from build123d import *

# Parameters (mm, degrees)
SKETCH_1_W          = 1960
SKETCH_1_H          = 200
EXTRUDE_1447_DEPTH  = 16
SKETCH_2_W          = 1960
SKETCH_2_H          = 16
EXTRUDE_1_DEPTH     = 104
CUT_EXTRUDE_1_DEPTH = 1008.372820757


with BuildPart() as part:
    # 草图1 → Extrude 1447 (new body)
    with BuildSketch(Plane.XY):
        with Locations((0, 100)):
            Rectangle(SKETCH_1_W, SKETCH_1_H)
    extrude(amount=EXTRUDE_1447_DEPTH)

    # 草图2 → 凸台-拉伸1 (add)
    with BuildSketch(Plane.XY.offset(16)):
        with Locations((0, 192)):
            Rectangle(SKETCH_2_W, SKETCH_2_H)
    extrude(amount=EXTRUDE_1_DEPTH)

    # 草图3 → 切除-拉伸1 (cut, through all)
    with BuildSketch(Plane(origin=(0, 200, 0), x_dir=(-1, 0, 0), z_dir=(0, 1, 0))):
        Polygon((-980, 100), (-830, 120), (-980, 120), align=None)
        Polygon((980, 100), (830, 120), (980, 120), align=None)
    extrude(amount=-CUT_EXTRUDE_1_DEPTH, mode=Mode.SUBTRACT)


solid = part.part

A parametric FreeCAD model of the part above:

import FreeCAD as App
import Part
import Sketcher
from FreeCAD import Vector

doc = App.newDocument("Part")
body = doc.addObject("PartDesign::Body", "Body")

# Sketch on XY plane
sketch1 = body.newObject("Sketcher::SketchObject", "Sketch")
sketch1.AttachmentSupport = (doc.getObject("XY_Plane"), [""])
sketch1.MapMode = "FlatFace"
sketch1.addGeometry(Part.LineSegment(Vector(-980, 200, 0), Vector(-980, 0, 0)), False)
sketch1.addGeometry(Part.LineSegment(Vector(-980, 0, 0), Vector(980, 0, 0)), False)
sketch1.addGeometry(Part.LineSegment(Vector(980, 0, 0), Vector(980, 200, 0)), False)
sketch1.addGeometry(Part.LineSegment(Vector(980, 200, 0), Vector(-980, 200, 0)), False)
sketch1.addConstraint(Sketcher.Constraint("Coincident", 0, 2, 1, 1))
sketch1.addConstraint(Sketcher.Constraint("Coincident", 1, 2, 2, 1))
sketch1.addConstraint(Sketcher.Constraint("Coincident", 2, 2, 3, 1))
sketch1.addConstraint(Sketcher.Constraint("Coincident", 3, 2, 0, 1))
sketch1.addConstraint(Sketcher.Constraint("Vertical", 0))
sketch1.addConstraint(Sketcher.Constraint("Horizontal", 1))
sketch1.addConstraint(Sketcher.Constraint("Vertical", 2))
sketch1.addConstraint(Sketcher.Constraint("Horizontal", 3))
sketch1.addConstraint(Sketcher.Constraint("Symmetric", 0, 2, 1, 2, -1, 1))
sketch1.addConstraint(Sketcher.Constraint("DistanceX", 1, 1, 1, 2, 1960.0))
sketch1.addConstraint(Sketcher.Constraint("DistanceY", 0, 2, 0, 1, 200.0))
pad1 = body.newObject("PartDesign::Pad", "Pad")
pad1.Profile = sketch1
pad1.Length = 16

# Sketch on XY plane
sketch2 = body.newObject("Sketcher::SketchObject", "Sketch001")
sketch2.AttachmentSupport = (doc.getObject("XY_Plane"), [""])
sketch2.MapMode = "FlatFace"
sketch2.AttachmentOffset = App.Placement(Vector(0, 0, 16), App.Rotation())
sketch2.addGeometry(Part.LineSegment(Vector(-980, 200, 0), Vector(-980, 184, 0)), False)
sketch2.addGeometry(Part.LineSegment(Vector(-980, 184, 0), Vector(980, 184, 0)), False)
sketch2.addGeometry(Part.LineSegment(Vector(980, 184, 0), Vector(980, 200, 0)), False)
sketch2.addGeometry(Part.LineSegment(Vector(980, 200, 0), Vector(-980, 200, 0)), False)
sketch2.addConstraint(Sketcher.Constraint("Coincident", 0, 2, 1, 1))
sketch2.addConstraint(Sketcher.Constraint("Coincident", 1, 2, 2, 1))
sketch2.addConstraint(Sketcher.Constraint("Coincident", 2, 2, 3, 1))
sketch2.addConstraint(Sketcher.Constraint("Coincident", 3, 2, 0, 1))
sketch2.addConstraint(Sketcher.Constraint("Vertical", 0))
sketch2.addConstraint(Sketcher.Constraint("Horizontal", 1))
sketch2.addConstraint(Sketcher.Constraint("Vertical", 2))
sketch2.addConstraint(Sketcher.Constraint("Horizontal", 3))
sketch2.addConstraint(Sketcher.Constraint("DistanceX", 1, 1, 1, 2, 1960.0))
sketch2.addConstraint(Sketcher.Constraint("DistanceY", 0, 2, 0, 1, 16.0))
sketch2.addConstraint(Sketcher.Constraint("DistanceX", 0, 2, -1, 1, 980.0))
sketch2.addConstraint(Sketcher.Constraint("DistanceY", -1, 1, 0, 2, 184.0))
pad2 = body.newObject("PartDesign::Pad", "Pad001")
pad2.Profile = sketch2
pad2.Length = 104

# Sketch on XZ plane
sketch3 = body.newObject("Sketcher::SketchObject", "Sketch002")
sketch3.AttachmentSupport = (doc.getObject("XZ_Plane"), [""])
sketch3.MapMode = "FlatFace"
sketch3.AttachmentOffset = App.Placement(Vector(0, 0, -200), App.Rotation())
sketch3.addGeometry(Part.LineSegment(Vector(980, 100, 0), Vector(830, 120, 0)), False)
sketch3.addGeometry(Part.LineSegment(Vector(830, 120, 0), Vector(980, 120, 0)), False)
sketch3.addGeometry(Part.LineSegment(Vector(980, 120, 0), Vector(980, 100, 0)), False)
sketch3.addGeometry(Part.LineSegment(Vector(-830, 120, 0), Vector(-980, 100, 0)), False)
sketch3.addGeometry(Part.LineSegment(Vector(-980, 100, 0), Vector(-980, 120, 0)), False)
sketch3.addGeometry(Part.LineSegment(Vector(-980, 120, 0), Vector(-830, 120, 0)), False)
sketch3.addConstraint(Sketcher.Constraint("Coincident", 0, 2, 1, 1))
sketch3.addConstraint(Sketcher.Constraint("Coincident", 1, 2, 2, 1))
sketch3.addConstraint(Sketcher.Constraint("Coincident", 2, 2, 0, 1))
sketch3.addConstraint(Sketcher.Constraint("Coincident", 3, 2, 4, 1))
sketch3.addConstraint(Sketcher.Constraint("Coincident", 4, 2, 5, 1))
sketch3.addConstraint(Sketcher.Constraint("Coincident", 5, 2, 3, 1))
sketch3.addConstraint(Sketcher.Constraint("Horizontal", 1))
sketch3.addConstraint(Sketcher.Constraint("Vertical", 2))
sketch3.addConstraint(Sketcher.Constraint("Vertical", 4))
sketch3.addConstraint(Sketcher.Constraint("Horizontal", 5))
sketch3.addConstraint(Sketcher.Constraint("Symmetric", 2, 2, 3, 2, -2))
sketch3.addConstraint(Sketcher.Constraint("Symmetric", 0, 2, 5, 2, -2))
sketch3.addConstraint(Sketcher.Constraint("DistanceX", 1, 1, 1, 2, 150.0))
sketch3.addConstraint(Sketcher.Constraint("DistanceY", 2, 2, 2, 1, 20.0))
sketch3.addConstraint(Sketcher.Constraint("DistanceX", -1, 1, 0, 2, 830.0))
sketch3.addConstraint(Sketcher.Constraint("DistanceY", -1, 1, 0, 2, 120.0))
pocket1 = body.newObject("PartDesign::Pocket", "Pocket")
pocket1.Profile = sketch3
pocket1.Type = "ThroughAll"
pocket1.Reversed = True

doc.recompute()
